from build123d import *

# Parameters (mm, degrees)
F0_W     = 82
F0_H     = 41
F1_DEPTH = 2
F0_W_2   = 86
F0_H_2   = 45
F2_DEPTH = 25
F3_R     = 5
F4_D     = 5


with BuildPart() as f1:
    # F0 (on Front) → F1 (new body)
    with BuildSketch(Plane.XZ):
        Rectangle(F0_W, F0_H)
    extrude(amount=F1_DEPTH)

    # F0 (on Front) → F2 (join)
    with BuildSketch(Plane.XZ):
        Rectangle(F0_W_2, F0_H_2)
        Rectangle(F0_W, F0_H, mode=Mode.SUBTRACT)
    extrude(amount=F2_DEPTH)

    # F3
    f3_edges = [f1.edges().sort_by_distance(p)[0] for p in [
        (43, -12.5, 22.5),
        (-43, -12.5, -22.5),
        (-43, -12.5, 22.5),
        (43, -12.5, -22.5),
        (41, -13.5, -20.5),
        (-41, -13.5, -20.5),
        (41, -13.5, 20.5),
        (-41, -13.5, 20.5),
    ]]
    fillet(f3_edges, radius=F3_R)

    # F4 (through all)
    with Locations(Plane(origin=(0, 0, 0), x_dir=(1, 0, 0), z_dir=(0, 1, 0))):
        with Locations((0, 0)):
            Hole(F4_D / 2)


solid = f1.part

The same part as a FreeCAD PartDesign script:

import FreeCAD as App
import Part
import Sketcher

V = App.Vector
Q = App.Units.Quantity


def edges_at(feature, points):
    """Names of the edges that pass closest to the given points."""
    edges = feature.Shape.Edges
    near = lambda p: min(range(len(edges)), key=lambda i: edges[i].distToShape(Part.Vertex(*p))[0])
    return sorted({f"Edge{near(p) + 1}" for p in points})


def add_polygon(sketch, points):
    """Adds a closed chain of lines whose ends are joined by coincident constraints."""
    first, n = sketch.GeometryCount, len(points)
    for a, b in zip(points, points[1:] + points[:1]):
        sketch.addGeometry(Part.LineSegment(App.Vector(*a, 0), App.Vector(*b, 0)), False)
    for i in range(n):
        sketch.addConstraint(Sketcher.Constraint("Coincident", first + i, 2, first + (i + 1) % n, 1))

doc = App.newDocument("Part")
body = doc.addObject("PartDesign::Body", "Body")

sketch1 = body.newObject("Sketcher::SketchObject", "Sketch")
sketch1.AttachmentSupport = (doc.getObject("XZ_Plane"), [""])
sketch1.MapMode = "FlatFace"
add_polygon(sketch1, [(-41, 20), (-41, -20), (41, -20), (41, 20)])
sketch1.addConstraint([
    Sketcher.Constraint("Vertical", 0),
    Sketcher.Constraint("Horizontal", 1),
    Sketcher.Constraint("Vertical", 2),
    Sketcher.Constraint("Horizontal", 3),
    Sketcher.Constraint("Symmetric", 0, 2, 2, 2, -1, 1),
    Sketcher.Constraint("DistanceX", 1, 1, 1, 2, Q("82 mm")),
    Sketcher.Constraint("DistanceY", 0, 2, 0, 1, Q("41 mm")),
])
pad1 = body.newObject("PartDesign::Pad", "Pad")
pad1.Profile = sketch1
pad1.Length = 2

sketch2 = body.newObject("Sketcher::SketchObject", "Sketch001")
sketch2.AttachmentSupport = (doc.getObject("XZ_Plane"), [""])
sketch2.MapMode = "FlatFace"
add_polygon(sketch2, [(-43, 22), (-43, -22), (43, -22), (43, 22)])
add_polygon(sketch2, [(41, -20), (-41, -20), (-41, 20), (41, 20)])
sketch2.addConstraint([
    Sketcher.Constraint("Vertical", 0),
    Sketcher.Constraint("Horizontal", 1),
    Sketcher.Constraint("Vertical", 2),
    Sketcher.Constraint("Horizontal", 3),
    Sketcher.Constraint("Horizontal", 4),
    Sketcher.Constraint("Vertical", 5),
    Sketcher.Constraint("Horizontal", 6),
    Sketcher.Constraint("Vertical", 7),
    Sketcher.Constraint("Symmetric", 0, 2, 2, 2, -1, 1),
    Sketcher.Constraint("Symmetric", 4, 2, 6, 2, -1, 1),
    Sketcher.Constraint("DistanceX", 1, 1, 1, 2, Q("86 mm")),
    Sketcher.Constraint("DistanceX", 4, 2, 4, 1, Q("82 mm")),
    Sketcher.Constraint("DistanceY", 0, 2, 0, 1, Q("45 mm")),
    Sketcher.Constraint("DistanceY", 5, 1, 5, 2, Q("41 mm")),
])
pad2 = body.newObject("PartDesign::Pad", "Pad001")
pad2.Profile = sketch2
pad2.Length = 25
doc.recompute()

fillet = body.newObject("PartDesign::Fillet", "Fillet")
fillet.Base = (pad2, edges_at(pad2, [
    (43, -12.5, 22.5),
    (-43, -12.5, -22.5),
    (-43, -12.5, 22.5),
    (43, -12.5, -22.5),
    (41, -13.5, -20.5),
    (-41, -13.5, -20.5),
    (41, -13.5, 20.5),
    (-41, -13.5, 20.5),
]))
fillet.Radius = 5

sketch3 = body.newObject("Sketcher::SketchObject", "Sketch002")
sketch3.AttachmentSupport = (doc.getObject("XZ_Plane"), [""])
sketch3.MapMode = "FlatFace"
sketch3.addGeometry(Part.Circle(V(0, 0, 0), V(0, 0, 1), 2.5), False)
sketch3.addConstraint([
    Sketcher.Constraint("Coincident", 0, 3, -1, 1),
    Sketcher.Constraint("Diameter", 0, Q("5 mm")),
])
doc.recompute()
hole = body.newObject("PartDesign::Hole", "Hole")
hole.Profile = sketch3
hole.ThreadType = "None"
hole.Diameter = 5
hole.DepthType = "ThroughAll"
hole.Reversed = True

doc.recompute()
